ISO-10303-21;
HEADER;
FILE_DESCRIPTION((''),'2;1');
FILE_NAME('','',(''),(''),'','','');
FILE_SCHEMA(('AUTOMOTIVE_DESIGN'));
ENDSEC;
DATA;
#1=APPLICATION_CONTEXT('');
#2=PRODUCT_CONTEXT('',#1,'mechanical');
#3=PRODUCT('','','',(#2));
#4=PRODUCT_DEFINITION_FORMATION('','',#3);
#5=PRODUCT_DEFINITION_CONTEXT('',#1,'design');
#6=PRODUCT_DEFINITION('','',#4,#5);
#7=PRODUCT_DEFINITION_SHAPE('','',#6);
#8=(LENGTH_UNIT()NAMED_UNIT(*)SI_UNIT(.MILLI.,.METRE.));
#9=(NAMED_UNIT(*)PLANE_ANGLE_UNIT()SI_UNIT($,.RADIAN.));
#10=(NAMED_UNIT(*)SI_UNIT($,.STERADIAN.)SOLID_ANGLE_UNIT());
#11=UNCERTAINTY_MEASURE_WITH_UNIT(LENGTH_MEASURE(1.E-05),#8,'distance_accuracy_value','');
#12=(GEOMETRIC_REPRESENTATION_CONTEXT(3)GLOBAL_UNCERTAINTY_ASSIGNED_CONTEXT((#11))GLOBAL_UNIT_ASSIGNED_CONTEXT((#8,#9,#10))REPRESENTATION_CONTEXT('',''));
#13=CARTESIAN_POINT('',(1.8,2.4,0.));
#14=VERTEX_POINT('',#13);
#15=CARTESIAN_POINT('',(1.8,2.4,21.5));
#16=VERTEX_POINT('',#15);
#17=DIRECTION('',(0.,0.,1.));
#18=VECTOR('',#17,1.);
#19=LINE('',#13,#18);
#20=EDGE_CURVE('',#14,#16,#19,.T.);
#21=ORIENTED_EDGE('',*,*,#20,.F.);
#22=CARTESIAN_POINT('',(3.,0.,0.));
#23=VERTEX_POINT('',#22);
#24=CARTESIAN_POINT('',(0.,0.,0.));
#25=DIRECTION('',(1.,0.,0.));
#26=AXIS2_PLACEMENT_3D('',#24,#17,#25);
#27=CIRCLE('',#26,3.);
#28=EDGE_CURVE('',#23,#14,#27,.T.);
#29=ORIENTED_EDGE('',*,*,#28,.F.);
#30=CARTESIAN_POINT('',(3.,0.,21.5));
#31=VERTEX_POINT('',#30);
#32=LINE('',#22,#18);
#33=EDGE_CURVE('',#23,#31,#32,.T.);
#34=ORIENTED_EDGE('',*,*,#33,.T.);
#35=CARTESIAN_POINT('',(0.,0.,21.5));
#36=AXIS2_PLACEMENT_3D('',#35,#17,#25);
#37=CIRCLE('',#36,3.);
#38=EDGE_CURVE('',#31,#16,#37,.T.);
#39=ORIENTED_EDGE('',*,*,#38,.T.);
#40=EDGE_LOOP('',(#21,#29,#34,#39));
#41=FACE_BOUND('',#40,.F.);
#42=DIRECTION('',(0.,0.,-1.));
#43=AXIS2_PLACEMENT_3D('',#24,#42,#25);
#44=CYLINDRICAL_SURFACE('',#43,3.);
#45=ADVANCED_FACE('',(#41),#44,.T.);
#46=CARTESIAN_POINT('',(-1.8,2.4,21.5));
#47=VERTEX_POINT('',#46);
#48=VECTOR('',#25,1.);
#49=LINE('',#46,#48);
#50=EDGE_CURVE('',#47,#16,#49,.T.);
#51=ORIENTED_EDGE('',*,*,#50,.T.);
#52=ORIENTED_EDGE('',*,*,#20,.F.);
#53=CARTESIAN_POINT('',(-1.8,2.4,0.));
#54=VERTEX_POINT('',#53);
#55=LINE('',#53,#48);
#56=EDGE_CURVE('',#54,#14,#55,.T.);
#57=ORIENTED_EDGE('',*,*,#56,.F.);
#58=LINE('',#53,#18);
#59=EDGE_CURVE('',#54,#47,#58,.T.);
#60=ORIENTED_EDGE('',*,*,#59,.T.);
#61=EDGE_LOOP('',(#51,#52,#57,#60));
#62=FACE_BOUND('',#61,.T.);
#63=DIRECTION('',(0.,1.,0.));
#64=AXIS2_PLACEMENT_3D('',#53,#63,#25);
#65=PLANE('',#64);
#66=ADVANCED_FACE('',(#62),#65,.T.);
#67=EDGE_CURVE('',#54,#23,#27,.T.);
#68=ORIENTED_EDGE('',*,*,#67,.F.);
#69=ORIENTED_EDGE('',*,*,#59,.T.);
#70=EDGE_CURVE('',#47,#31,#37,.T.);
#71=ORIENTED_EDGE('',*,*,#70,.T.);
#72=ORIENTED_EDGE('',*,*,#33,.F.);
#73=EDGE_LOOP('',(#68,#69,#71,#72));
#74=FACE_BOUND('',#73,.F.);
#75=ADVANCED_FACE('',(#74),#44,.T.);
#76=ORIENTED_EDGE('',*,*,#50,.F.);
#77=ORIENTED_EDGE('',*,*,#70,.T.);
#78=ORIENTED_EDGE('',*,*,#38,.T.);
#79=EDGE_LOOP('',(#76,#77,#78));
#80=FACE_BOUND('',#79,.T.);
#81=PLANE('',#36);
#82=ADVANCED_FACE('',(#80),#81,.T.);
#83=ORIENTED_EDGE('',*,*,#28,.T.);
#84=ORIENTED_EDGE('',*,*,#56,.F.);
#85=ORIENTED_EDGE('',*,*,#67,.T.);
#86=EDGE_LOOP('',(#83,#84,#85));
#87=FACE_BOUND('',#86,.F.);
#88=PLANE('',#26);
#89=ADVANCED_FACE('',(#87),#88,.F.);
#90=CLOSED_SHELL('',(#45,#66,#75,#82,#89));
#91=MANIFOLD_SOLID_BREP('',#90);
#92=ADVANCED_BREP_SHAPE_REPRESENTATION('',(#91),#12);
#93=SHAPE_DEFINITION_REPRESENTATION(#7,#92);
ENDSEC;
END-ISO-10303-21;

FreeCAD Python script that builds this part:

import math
import FreeCAD as App
import Part
import Sketcher

doc = App.newDocument("Part")
params = doc.addObject("Spreadsheet::Sheet", "Params")
for row, (alias, value) in enumerate([
    ("sketch1_radius", "3 mm"),
    ("sketch1_width", "3.6 mm"),
    ("pad1_length", "21.5 mm"),
], start=1):
    params.set(f"A{row}", alias)
    params.set(f"B{row}", "=" + value)
    params.setAlias(f"B{row}", alias)

body = doc.addObject("PartDesign::Body", "Body")

# Sketch on XY plane
sketch1 = doc.addObject("Sketcher::SketchObject", "Sketch")
body.addObject(sketch1)
sketch1.AttachmentSupport = (doc.XY_Plane, [""])
sketch1.MapMode = "FlatFace"
sketch1.addGeometry([
    Part.ArcOfCircle(Part.Circle(App.Vector(0, 0, 0), App.Vector(0, 0, 1), 3), math.radians(127), math.radians(413)),
    Part.LineSegment(App.Vector(1.8, 2.4, 0), App.Vector(-1.8, 2.4, 0)),
], False)
sketch1.addConstraint([
    Sketcher.Constraint("Coincident", 0, 1, 1, 2),
    Sketcher.Constraint("Coincident", 1, 1, 0, 2),
    Sketcher.Constraint("Horizontal", 1),
    Sketcher.Constraint("Coincident", 0, 3, -1, 1),
    Sketcher.Constraint("Radius", 0, 3.0),
    Sketcher.Constraint("DistanceX", 1, 2, 1, 1, 3.6),
])
sketch1.setExpression("Constraints[4]", "Params.sketch1_radius")
sketch1.setExpression("Constraints[5]", "Params.sketch1_width")
pad1 = doc.addObject("PartDesign::Pad", "Pad")
body.addObject(pad1)
pad1.Profile = sketch1
pad1.setExpression("Length", "Params.pad1_length")

doc.recompute()
